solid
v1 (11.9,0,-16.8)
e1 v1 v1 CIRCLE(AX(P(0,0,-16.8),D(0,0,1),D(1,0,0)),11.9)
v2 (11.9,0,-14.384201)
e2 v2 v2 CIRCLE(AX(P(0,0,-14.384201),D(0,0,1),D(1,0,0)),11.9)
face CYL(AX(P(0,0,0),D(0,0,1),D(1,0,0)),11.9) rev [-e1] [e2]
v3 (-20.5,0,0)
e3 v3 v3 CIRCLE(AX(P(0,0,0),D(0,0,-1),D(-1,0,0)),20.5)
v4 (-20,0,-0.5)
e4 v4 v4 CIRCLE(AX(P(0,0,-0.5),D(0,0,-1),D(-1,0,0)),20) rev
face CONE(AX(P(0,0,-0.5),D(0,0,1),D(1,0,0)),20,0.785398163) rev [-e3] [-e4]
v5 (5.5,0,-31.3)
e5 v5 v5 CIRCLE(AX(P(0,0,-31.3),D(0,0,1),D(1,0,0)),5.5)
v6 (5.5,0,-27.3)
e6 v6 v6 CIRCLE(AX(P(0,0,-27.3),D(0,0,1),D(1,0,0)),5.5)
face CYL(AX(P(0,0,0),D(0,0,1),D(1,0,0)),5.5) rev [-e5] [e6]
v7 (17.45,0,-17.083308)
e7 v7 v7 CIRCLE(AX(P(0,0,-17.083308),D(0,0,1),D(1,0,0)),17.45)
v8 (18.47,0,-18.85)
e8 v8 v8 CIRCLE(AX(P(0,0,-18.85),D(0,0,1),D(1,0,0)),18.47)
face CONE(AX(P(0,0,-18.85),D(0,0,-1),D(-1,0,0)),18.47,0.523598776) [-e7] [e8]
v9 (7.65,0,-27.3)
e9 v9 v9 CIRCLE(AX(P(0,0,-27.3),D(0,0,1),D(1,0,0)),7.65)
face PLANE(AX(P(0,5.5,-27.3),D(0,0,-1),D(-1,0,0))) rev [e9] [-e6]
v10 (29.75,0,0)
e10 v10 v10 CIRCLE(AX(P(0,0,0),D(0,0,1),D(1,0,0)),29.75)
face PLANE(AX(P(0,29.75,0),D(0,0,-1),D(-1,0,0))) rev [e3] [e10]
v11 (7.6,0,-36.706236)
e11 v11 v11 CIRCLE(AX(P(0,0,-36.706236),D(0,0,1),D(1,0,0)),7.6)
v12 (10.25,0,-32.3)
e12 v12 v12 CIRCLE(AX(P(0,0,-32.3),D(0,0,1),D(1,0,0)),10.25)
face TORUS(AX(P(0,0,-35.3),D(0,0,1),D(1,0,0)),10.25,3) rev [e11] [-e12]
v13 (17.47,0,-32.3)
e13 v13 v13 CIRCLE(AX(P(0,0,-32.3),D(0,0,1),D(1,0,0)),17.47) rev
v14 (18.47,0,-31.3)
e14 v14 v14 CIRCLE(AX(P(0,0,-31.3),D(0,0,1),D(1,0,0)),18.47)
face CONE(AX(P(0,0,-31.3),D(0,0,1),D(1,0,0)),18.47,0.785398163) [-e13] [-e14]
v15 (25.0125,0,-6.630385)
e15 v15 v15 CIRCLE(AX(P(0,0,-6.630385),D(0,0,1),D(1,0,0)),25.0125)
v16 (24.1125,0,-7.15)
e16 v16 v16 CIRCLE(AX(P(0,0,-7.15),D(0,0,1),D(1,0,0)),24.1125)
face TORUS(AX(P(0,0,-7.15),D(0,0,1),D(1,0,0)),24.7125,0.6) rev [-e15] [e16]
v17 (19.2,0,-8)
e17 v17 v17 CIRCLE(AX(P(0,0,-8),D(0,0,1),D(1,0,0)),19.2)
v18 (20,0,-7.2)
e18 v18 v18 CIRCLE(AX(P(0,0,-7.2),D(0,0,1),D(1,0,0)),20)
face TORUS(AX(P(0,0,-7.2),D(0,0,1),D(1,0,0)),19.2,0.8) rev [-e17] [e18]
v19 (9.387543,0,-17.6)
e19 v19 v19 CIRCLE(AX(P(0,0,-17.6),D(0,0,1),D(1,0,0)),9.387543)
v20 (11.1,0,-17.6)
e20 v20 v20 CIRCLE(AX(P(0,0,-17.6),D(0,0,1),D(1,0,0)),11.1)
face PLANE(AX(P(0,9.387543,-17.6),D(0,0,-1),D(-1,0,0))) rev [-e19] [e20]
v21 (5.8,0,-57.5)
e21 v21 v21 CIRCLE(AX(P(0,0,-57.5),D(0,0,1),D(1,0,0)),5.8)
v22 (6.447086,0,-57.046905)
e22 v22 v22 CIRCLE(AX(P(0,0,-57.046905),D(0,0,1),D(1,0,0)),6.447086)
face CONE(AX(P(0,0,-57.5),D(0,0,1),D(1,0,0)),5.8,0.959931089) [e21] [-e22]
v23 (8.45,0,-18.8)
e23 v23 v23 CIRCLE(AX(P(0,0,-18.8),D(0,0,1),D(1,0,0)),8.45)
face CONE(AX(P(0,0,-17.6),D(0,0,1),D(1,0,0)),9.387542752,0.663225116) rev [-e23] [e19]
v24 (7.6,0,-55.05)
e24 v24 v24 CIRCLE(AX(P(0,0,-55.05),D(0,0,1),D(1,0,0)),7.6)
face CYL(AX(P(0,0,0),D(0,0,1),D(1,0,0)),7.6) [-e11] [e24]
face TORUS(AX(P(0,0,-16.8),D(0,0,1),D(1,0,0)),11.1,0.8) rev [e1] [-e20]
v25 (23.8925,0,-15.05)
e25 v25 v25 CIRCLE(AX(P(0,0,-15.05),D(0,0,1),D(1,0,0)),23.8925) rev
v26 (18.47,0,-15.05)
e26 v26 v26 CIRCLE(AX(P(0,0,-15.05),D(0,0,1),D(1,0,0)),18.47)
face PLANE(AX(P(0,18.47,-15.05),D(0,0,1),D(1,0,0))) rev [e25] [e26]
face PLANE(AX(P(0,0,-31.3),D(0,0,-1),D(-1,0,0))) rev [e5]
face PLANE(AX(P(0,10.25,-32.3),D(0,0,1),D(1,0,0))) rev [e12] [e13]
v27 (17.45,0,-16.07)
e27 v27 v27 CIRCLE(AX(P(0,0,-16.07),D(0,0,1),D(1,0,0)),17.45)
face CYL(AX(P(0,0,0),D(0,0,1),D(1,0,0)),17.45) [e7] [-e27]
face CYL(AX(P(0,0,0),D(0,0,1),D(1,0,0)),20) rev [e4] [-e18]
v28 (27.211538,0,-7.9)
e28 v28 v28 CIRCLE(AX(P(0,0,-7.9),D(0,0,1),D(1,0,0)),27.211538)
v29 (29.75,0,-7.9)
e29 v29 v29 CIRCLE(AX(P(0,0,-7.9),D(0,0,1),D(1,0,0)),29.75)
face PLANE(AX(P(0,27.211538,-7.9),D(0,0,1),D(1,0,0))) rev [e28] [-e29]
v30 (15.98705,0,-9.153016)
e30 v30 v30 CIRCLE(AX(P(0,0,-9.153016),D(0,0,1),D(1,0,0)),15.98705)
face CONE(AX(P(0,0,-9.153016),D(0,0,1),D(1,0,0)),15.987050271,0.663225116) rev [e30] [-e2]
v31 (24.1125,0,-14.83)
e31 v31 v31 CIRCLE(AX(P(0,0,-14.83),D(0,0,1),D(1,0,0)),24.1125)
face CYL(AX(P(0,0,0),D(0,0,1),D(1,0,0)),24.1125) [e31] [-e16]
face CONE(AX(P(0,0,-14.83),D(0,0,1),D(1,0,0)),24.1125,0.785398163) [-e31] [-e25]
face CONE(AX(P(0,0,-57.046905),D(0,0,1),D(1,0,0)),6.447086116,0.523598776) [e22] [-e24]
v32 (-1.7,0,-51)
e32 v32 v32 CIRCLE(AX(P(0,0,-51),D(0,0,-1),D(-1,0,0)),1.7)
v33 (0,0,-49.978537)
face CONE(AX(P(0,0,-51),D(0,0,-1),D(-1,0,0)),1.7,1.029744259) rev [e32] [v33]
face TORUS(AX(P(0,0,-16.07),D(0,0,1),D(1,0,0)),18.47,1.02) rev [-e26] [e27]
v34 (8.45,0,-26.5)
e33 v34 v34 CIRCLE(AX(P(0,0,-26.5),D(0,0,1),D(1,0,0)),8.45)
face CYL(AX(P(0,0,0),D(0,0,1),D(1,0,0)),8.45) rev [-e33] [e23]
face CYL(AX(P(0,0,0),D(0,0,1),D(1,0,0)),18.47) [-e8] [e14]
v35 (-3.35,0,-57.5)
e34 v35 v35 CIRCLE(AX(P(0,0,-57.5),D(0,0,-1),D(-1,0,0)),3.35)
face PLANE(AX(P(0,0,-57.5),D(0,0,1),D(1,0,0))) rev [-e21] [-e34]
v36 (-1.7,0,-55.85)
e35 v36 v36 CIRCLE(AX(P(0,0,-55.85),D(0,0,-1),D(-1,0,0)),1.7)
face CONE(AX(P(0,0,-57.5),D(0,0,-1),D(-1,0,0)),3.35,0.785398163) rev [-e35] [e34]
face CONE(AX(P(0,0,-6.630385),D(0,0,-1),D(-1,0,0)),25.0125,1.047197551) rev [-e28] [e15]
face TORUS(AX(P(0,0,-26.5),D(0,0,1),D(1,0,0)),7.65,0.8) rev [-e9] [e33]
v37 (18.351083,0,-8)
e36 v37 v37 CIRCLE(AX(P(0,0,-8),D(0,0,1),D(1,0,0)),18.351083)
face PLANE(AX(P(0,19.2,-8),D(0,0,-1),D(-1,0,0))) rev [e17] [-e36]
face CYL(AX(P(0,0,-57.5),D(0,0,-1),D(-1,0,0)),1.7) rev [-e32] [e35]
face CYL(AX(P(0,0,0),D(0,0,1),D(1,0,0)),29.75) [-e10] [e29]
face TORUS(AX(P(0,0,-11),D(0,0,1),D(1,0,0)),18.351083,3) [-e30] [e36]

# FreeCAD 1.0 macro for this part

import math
import FreeCAD as App
import Part
import Sketcher
from FreeCAD import Vector
Q = App.Units.Quantity


def edges_at(feature, points):
    """Names of the edges that pass closest to the given points."""
    edges = feature.Shape.Edges
    near = lambda p: min(range(len(edges)), key=lambda i: edges[i].distToShape(Part.Vertex(*p))[0])
    return sorted({f"Edge{near(p) + 1}" for p in points})

doc = App.newDocument("Part")
body = doc.addObject("PartDesign::Body", "Body")

sketch1 = body.newObject("Sketcher::SketchObject", "Sketch")
sketch1.AttachmentSupport = (doc.getObject("YZ_Plane"), [""])
sketch1.MapMode = "FlatFace"
sketch1.addGeometry([
    Part.LineSegment(Vector(0, -57.5, 0), Vector(5.8, -57.5, 0)),
    Part.LineSegment(Vector(5.8, -57.5, 0), Vector(6.4, -57, 0)),
    Part.LineSegment(Vector(6.4, -57, 0), Vector(7.6, -55, 0)),
    Part.LineSegment(Vector(7.6, -55, 0), Vector(7.6, -36.7, 0)),
    Part.ArcOfCircle(Part.Circle(Vector(10.2, -35.3, 0), Vector(0, 0, 1), 3), math.radians(90), math.radians(208)),
    Part.LineSegment(Vector(10.2, -32.3, 0), Vector(18.5, -32.3, 0)),
    Part.LineSegment(Vector(18.5, -32.3, 0), Vector(18.5, -18.9, 0)),
    Part.LineSegment(Vector(18.5, -18.9, 0), Vector(17.4, -17.1, 0)),
    Part.LineSegment(Vector(17.4, -17.1, 0), Vector(17.4, -16.1, 0)),
    Part.ArcOfCircle(Part.Circle(Vector(18.5, -16.1, 0), Vector(0, 0, 1), 1), math.radians(90), math.radians(180)),
    Part.LineSegment(Vector(18.5, -15.1, 0), Vector(24.1, -15.1, 0)),
    Part.LineSegment(Vector(24.1, -15.1, 0), Vector(24.1, -7.2, 0)),
    Part.ArcOfCircle(Part.Circle(Vector(24.7, -7.2, 0), Vector(0, 0, 1), 0.6), math.radians(60), math.radians(180)),
    Part.LineSegment(Vector(25, -6.6, 0), Vector(27.2, -7.9, 0)),
    Part.LineSegment(Vector(27.2, -7.9, 0), Vector(29.8, -7.9, 0)),
    Part.LineSegment(Vector(29.8, -7.9, 0), Vector(29.8, 0, 0)),
    Part.LineSegment(Vector(29.8, 0, 0), Vector(20, 0, 0)),
    Part.LineSegment(Vector(20, 0, 0), Vector(20, -7.2, 0)),
    Part.ArcOfCircle(Part.Circle(Vector(19.2, -7.2, 0), Vector(0, 0, 1), 0.8), math.radians(-90), math.radians(0)),
    Part.LineSegment(Vector(19.2, -8, 0), Vector(18.4, -8, 0)),
    Part.ArcOfCircle(Part.Circle(Vector(18.4, -11, 0), Vector(0, 0, 1), 3), math.radians(90), math.radians(142)),
    Part.LineSegment(Vector(16, -9.2, 0), Vector(11.9, -14.4, 0)),
    Part.LineSegment(Vector(11.9, -14.4, 0), Vector(11.9, -16.8, 0)),
    Part.ArcOfCircle(Part.Circle(Vector(11.1, -16.8, 0), Vector(0, 0, 1), 0.8), math.radians(-90), math.radians(0)),
    Part.LineSegment(Vector(11.1, -17.6, 0), Vector(9.4, -17.6, 0)),
    Part.LineSegment(Vector(9.4, -17.6, 0), Vector(8.4, -18.8, 0)),
    Part.LineSegment(Vector(8.4, -18.8, 0), Vector(8.4, -26.5, 0)),
    Part.ArcOfCircle(Part.Circle(Vector(7.7, -26.5, 0), Vector(0, 0, 1), 0.8), math.radians(-90), math.radians(0)),
    Part.LineSegment(Vector(7.7, -27.3, 0), Vector(5.5, -27.3, 0)),
    Part.LineSegment(Vector(5.5, -27.3, 0), Vector(5.5, -31.3, 0)),
    Part.LineSegment(Vector(5.5, -31.3, 0), Vector(0, -31.3, 0)),
    Part.LineSegment(Vector(0, -31.3, 0), Vector(0, -57.5, 0)),
], False)
sketch1.addConstraint([
    Sketcher.Constraint("Coincident", 0, 2, 1, 1),
    Sketcher.Constraint("Coincident", 1, 2, 2, 1),
    Sketcher.Constraint("Coincident", 2, 2, 3, 1),
    Sketcher.Constraint("Coincident", 3, 2, 4, 2),
    Sketcher.Constraint("Tangent", 4, 1, 5, 1),
    Sketcher.Constraint("Coincident", 5, 2, 6, 1),
    Sketcher.Constraint("Coincident", 6, 2, 7, 1),
    Sketcher.Constraint("Coincident", 7, 2, 8, 1),
    Sketcher.Constraint("Tangent", 8, 2, 9, 2),
    Sketcher.Constraint("Tangent", 9, 1, 10, 1),
    Sketcher.Constraint("Coincident", 10, 2, 11, 1),
    Sketcher.Constraint("Tangent", 11, 2, 12, 2),
    Sketcher.Constraint("Tangent", 12, 1, 13, 1),
    Sketcher.Constraint("Coincident", 13, 2, 14, 1),
    Sketcher.Constraint("Coincident", 14, 2, 15, 1),
    Sketcher.Constraint("Coincident", 15, 2, 16, 1),
    Sketcher.Constraint("Coincident", 16, 2, 17, 1),
    Sketcher.Constraint("Tangent", 17, 2, 18, 2),
    Sketcher.Constraint("Tangent", 18, 1, 19, 1),
    Sketcher.Constraint("Tangent", 19, 2, 20, 1),
    Sketcher.Constraint("Tangent", 20, 2, 21, 1),
    Sketcher.Constraint("Coincident", 21, 2, 22, 1),
    Sketcher.Constraint("Tangent", 22, 2, 23, 2),
    Sketcher.Constraint("Tangent", 23, 1, 24, 1),
    Sketcher.Constraint("Coincident", 24, 2, 25, 1),
    Sketcher.Constraint("Coincident", 25, 2, 26, 1),
    Sketcher.Constraint("Tangent", 26, 2, 27, 2),
    Sketcher.Constraint("Tangent", 27, 1, 28, 1),
    Sketcher.Constraint("Coincident", 28, 2, 29, 1),
    Sketcher.Constraint("Coincident", 29, 2, 30, 1),
    Sketcher.Constraint("Coincident", 30, 2, 31, 1),
    Sketcher.Constraint("Coincident", 31, 2, 0, 1),
    Sketcher.Constraint("Horizontal", 0),
    Sketcher.Constraint("Vertical", 3),
    Sketcher.Constraint("Horizontal", 5),
    Sketcher.Constraint("Vertical", 6),
    Sketcher.Constraint("Vertical", 8),
    Sketcher.Constraint("Horizontal", 10),
    Sketcher.Constraint("Vertical", 11),
    Sketcher.Constraint("Horizontal", 14),
    Sketcher.Constraint("Vertical", 15),
    Sketcher.Constraint("Horizontal", 16),
    Sketcher.Constraint("Vertical", 17),
    Sketcher.Constraint("Horizontal", 19),
    Sketcher.Constraint("Vertical", 22),
    Sketcher.Constraint("Horizontal", 24),
    Sketcher.Constraint("Vertical", 26),
    Sketcher.Constraint("Horizontal", 28),
    Sketcher.Constraint("Vertical", 29),
    Sketcher.Constraint("Horizontal", 30),
    Sketcher.Constraint("Vertical", 31),
    Sketcher.Constraint("Equal", 4, 20),
    Sketcher.Constraint("Equal", 18, 23),
    Sketcher.Constraint("Equal", 23, 27),
    Sketcher.Constraint("PointOnObject", 15, 2, -1),
    Sketcher.Constraint("PointOnObject", 30, 2, -2),
    Sketcher.Constraint("Perpendicular", 2, 13),
    Sketcher.Constraint("Parallel", 21, 25),
    Sketcher.Constraint("Vertical", 9, 3, 5, 2),
    Sketcher.Constraint("Equal", 11, 15),
    Sketcher.Constraint("Radius", 4, 3.0),
    Sketcher.Constraint("Radius", 12, 0.6),
    Sketcher.Constraint("Radius", 18, 0.8),
    Sketcher.Constraint("DistanceY", 29, 2, 29, 1, 4.0),
    Sketcher.Constraint("Angle", 1, Q("35 deg")),
    Sketcher.Constraint("Angle", 2, Q("60 deg")),
    Sketcher.Constraint("Angle", 7, Q("120 deg")),
    Sketcher.Constraint("Angle", 21, Q("-128 deg")),
    Sketcher.Constraint("Radius", 9, 1.02),
    Sketcher.Constraint("DistanceX", 0, 1, 0, 2, 5.8),
    Sketcher.Constraint("DistanceX", 30, 2, 30, 1, 5.5),
    Sketcher.Constraint("DistanceY", 11, 1, 11, 2, 7.9),
    Sketcher.Constraint("DistanceY", 17, 2, 17, 1, 7.2),
    Sketcher.Constraint("DistanceY", 26, 2, 26, 1, 7.7),
    Sketcher.Constraint("DistanceY", 31, 2, 31, 1, 26.2),
    Sketcher.Constraint("DistanceX", -1, 1, 16, 2, 20.0),
    Sketcher.Constraint("DistanceY", 25, 2, 23, 3, 2.0),
    Sketcher.Constraint("DistanceY", 4, 1, 27, 1, 5.0),
    Sketcher.Constraint("DistanceX", 5, 1, 5, 2, 8.22),
    Sketcher.Constraint("DistanceX", 16, 2, 16, 1, 9.75),
    Sketcher.Constraint("DistanceX", 28, 2, 28, 1, 2.15),
    Sketcher.Constraint("DistanceY", 6, 1, 6, 2, 13.45),
    Sketcher.Constraint("DistanceY", 4, 3, -1, 1, 35.3),
    Sketcher.Constraint("DistanceX", -1, 1, 23, 3, 11.1),
    Sketcher.Constraint("DistanceX", -1, 1, 2, 2, 7.6),
    Sketcher.Constraint("DistanceX", 27, 3, 4, 3, 2.6),
    Sketcher.Constraint("DistanceY", 6, 2, 9, 1, 3.8),
    Sketcher.Constraint("DistanceY", 2, 2, -1, 1, 55.05),
    Sketcher.Constraint("DistanceX", 10, 1, 10, 2, 5.6425),
    Sketcher.Constraint("DistanceY", 22, 2, 22, 1, 2.415799),
])
revolution = body.newObject("PartDesign::Revolution", "Revolution")
revolution.Profile = sketch1
revolution.ReferenceAxis = (sketch1, ["V_Axis"])
revolution.Angle = 360
doc.recompute()

chamfer = body.newObject("PartDesign::Chamfer", "Chamfer")
chamfer.Base = (revolution, edges_at(revolution, [(-18.47, 0, -32.3)]))
chamfer.Size = 1
doc.recompute()

chamfer2 = body.newObject("PartDesign::Chamfer", "Chamfer001")
chamfer2.Base = (chamfer, edges_at(chamfer, [(-24.113, 0, -15.05)]))
chamfer2.Size = 0.22
doc.recompute()

chamfer3 = body.newObject("PartDesign::Chamfer", "Chamfer002")
chamfer3.Base = (chamfer2, edges_at(chamfer2, [(-20, 0, 0)]))
chamfer3.Size = 0.5

sketch2 = body.newObject("Sketcher::SketchObject", "Sketch001")
sketch2.AttachmentSupport = (doc.getObject("XY_Plane"), [""])
sketch2.MapMode = "FlatFace"
sketch2.AttachmentOffset = App.Placement(Vector(0, 0, -57.5), App.Rotation())
sketch2.addGeometry(Part.Circle(Vector(0, 0, 0), Vector(0, 0, 1), 1.7), False)
sketch2.addConstraint([
    Sketcher.Constraint("Coincident", 0, 3, -1, 1),
    Sketcher.Constraint("Diameter", 0, 3.4),
])
doc.recompute()
hole = body.newObject("PartDesign::Hole", "Hole")
hole.Profile = sketch2
hole.ThreadType = "None"
hole.Diameter = 3.4
hole.DepthType = "Dimension"
hole.Depth = 6.5
hole.DrillPoint = "Angled"
hole.DrillPointAngle = 118
hole.HoleCutType = "Countersink"
hole.HoleCutDiameter = 6.7
hole.HoleCutCountersinkAngle = 90
hole.Reversed = True

doc.recompute()
